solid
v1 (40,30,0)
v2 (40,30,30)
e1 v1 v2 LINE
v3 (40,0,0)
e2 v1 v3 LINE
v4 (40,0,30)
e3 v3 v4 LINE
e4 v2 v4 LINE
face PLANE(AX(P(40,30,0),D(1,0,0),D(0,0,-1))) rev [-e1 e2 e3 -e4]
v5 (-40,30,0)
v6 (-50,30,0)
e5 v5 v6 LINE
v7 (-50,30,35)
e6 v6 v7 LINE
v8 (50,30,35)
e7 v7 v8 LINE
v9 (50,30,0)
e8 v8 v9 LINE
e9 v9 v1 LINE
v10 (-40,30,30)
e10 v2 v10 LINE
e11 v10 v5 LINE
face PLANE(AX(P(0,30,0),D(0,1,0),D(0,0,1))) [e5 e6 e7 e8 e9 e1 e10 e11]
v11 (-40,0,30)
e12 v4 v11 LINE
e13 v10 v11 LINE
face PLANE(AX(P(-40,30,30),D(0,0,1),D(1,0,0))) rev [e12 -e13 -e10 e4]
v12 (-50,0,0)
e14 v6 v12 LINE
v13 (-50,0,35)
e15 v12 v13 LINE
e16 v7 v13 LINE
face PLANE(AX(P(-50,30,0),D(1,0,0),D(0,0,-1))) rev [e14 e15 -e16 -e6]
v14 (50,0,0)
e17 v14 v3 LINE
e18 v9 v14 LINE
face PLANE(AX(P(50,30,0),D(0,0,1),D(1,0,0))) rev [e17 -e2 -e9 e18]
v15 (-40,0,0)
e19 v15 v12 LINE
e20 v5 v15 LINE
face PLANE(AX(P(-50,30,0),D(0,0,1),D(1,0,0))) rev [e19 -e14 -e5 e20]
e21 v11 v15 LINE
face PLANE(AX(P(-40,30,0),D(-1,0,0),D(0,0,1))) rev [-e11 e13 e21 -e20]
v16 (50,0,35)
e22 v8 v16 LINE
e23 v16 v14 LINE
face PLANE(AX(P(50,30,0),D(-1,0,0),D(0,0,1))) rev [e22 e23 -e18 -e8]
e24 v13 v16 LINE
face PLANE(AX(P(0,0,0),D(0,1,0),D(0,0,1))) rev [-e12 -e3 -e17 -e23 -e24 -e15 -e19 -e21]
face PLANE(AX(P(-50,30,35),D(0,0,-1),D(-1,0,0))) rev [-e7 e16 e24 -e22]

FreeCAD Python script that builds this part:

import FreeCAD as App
import Part
import Sketcher

V = App.Vector

doc = App.newDocument("Part")
body = doc.addObject("PartDesign::Body", "Body")

# Sketch on XZ plane
sketch1 = body.newObject("Sketcher::SketchObject", "Sketch")
sketch1.AttachmentSupport = (doc.getObject("XZ_Plane"), [""])
sketch1.MapMode = "FlatFace"
sketch1.addGeometry(Part.LineSegment(V(-40, 0, 0), V(-50, 0, 0)), False)
sketch1.addGeometry(Part.LineSegment(V(-50, 0, 0), V(-50, 35, 0)), False)
sketch1.addGeometry(Part.LineSegment(V(-50, 35, 0), V(50, 35, 0)), False)
sketch1.addGeometry(Part.LineSegment(V(50, 35, 0), V(50, 0, 0)), False)
sketch1.addGeometry(Part.LineSegment(V(50, 0, 0), V(40, 0, 0)), False)
sketch1.addGeometry(Part.LineSegment(V(40, 0, 0), V(40, 30, 0)), False)
sketch1.addGeometry(Part.LineSegment(V(40, 30, 0), V(-40, 30, 0)), False)
sketch1.addGeometry(Part.LineSegment(V(-40, 30, 0), V(-40, 0, 0)), False)
sketch1.addConstraint(Sketcher.Constraint("Coincident", 0, 2, 1, 1))
sketch1.addConstraint(Sketcher.Constraint("Coincident", 1, 2, 2, 1))
sketch1.addConstraint(Sketcher.Constraint("Coincident", 2, 2, 3, 1))
sketch1.addConstraint(Sketcher.Constraint("Coincident", 3, 2, 4, 1))
sketch1.addConstraint(Sketcher.Constraint("Coincident", 4, 2, 5, 1))
sketch1.addConstraint(Sketcher.Constraint("Coincident", 5, 2, 6, 1))
sketch1.addConstraint(Sketcher.Constraint("Coincident", 6, 2, 7, 1))
sketch1.addConstraint(Sketcher.Constraint("Coincident", 7, 2, 0, 1))
sketch1.addConstraint(Sketcher.Constraint("Horizontal", 0))
sketch1.addConstraint(Sketcher.Constraint("Vertical", 1))
sketch1.addConstraint(Sketcher.Constraint("Horizontal", 2))
sketch1.addConstraint(Sketcher.Constraint("Vertical", 3))
sketch1.addConstraint(Sketcher.Constraint("Horizontal", 4))
sketch1.addConstraint(Sketcher.Constraint("Vertical", 5))
sketch1.addConstraint(Sketcher.Constraint("Horizontal", 6))
sketch1.addConstraint(Sketcher.Constraint("Vertical", 7))
sketch1.addConstraint(Sketcher.Constraint("Symmetric", 0, 2, 3, 2, -1, 1))
sketch1.addConstraint(Sketcher.Constraint("Symmetric", 4, 2, 7, 2, -2))
sketch1.addConstraint(Sketcher.Constraint("DistanceX", 0, 2, 0, 1, 10.0))
sketch1.addConstraint(Sketcher.Constraint("DistanceX", 2, 1, 2, 2, 100.0))
sketch1.addConstraint(Sketcher.Constraint("DistanceY", 1, 1, 1, 2, 35.0))
sketch1.addConstraint(Sketcher.Constraint("DistanceY", 5, 1, 5, 2, 30.0))
pad1 = body.newObject("PartDesign::Pad", "Pad")
pad1.Profile = sketch1
pad1.Length = 30
pad1.Reversed = True

doc.recompute()
